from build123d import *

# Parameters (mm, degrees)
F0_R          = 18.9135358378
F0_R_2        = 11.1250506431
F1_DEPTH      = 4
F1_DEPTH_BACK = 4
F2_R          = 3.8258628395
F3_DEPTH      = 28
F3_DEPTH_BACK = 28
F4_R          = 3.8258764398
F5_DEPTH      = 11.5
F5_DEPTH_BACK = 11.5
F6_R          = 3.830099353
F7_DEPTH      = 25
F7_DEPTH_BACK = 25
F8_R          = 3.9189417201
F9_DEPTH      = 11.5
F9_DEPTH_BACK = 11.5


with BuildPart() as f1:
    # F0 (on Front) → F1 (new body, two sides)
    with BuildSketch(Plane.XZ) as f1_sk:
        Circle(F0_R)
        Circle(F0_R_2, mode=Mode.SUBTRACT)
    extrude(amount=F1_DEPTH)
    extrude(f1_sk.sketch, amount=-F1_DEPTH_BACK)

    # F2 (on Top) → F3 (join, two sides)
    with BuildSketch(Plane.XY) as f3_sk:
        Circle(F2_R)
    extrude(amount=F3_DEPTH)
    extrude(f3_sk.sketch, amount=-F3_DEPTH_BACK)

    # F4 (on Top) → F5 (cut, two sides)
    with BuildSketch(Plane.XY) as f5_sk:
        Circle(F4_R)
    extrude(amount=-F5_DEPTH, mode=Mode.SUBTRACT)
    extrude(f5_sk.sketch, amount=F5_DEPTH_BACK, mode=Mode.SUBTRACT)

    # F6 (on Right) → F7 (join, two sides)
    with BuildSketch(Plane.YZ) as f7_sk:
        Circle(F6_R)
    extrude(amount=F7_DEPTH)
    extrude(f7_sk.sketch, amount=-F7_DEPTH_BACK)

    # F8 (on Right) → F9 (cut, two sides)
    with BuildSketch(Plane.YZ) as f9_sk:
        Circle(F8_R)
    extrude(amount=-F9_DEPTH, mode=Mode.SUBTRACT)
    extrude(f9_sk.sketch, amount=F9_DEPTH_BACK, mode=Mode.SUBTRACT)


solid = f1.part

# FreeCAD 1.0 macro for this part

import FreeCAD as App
import Part
import Sketcher

V = App.Vector
Q = App.Units.Quantity

doc = App.newDocument("Part")
body = doc.addObject("PartDesign::Body", "Body")

sketch1 = doc.addObject("Sketcher::SketchObject", "Sketch")
body.addObject(sketch1)
sketch1.AttachmentSupport = (doc.XZ_Plane, [""])
sketch1.MapMode = "FlatFace"
sketch1.addGeometry([
    Part.Circle(V(0, 0, 0), V(0, 0, 1), 19),
    Part.Circle(V(0, 0, 0), V(0, 0, 1), 11),
], False)
sketch1.addConstraint([
    Sketcher.Constraint("Coincident", 0, 3, -1, 1),
    Sketcher.Constraint("Coincident", 1, 3, -1, 1),
    Sketcher.Constraint("Diameter", 1, Q("22.250101 mm")),
    Sketcher.Constraint("Diameter", 0, Q("37.827072 mm")),
])
pad1 = doc.addObject("PartDesign::Pad", "Pad")
body.addObject(pad1)
pad1.Profile = sketch1
pad1.Type = "TwoLengths"
pad1.Length = 4
pad1.Length2 = 4

sketch2 = doc.addObject("Sketcher::SketchObject", "Sketch001")
body.addObject(sketch2)
sketch2.AttachmentSupport = (doc.XY_Plane, [""])
sketch2.MapMode = "FlatFace"
sketch2.addGeometry(Part.Circle(V(0, 0, 0), V(0, 0, 1), 3.8), False)
sketch2.addConstraint([
    Sketcher.Constraint("Coincident", 0, 3, -1, 1),
    Sketcher.Constraint("Diameter", 0, Q("7.651726 mm")),
])
pad2 = doc.addObject("PartDesign::Pad", "Pad001")
body.addObject(pad2)
pad2.Profile = sketch2
pad2.Type = "TwoLengths"
pad2.Length = 28
pad2.Length2 = 28

sketch3 = doc.addObject("Sketcher::SketchObject", "Sketch002")
body.addObject(sketch3)
sketch3.AttachmentSupport = (doc.XY_Plane, [""])
sketch3.MapMode = "FlatFace"
sketch3.addGeometry(Part.Circle(V(0, 0, 0), V(0, 0, 1), 3.8), False)
sketch3.addConstraint([
    Sketcher.Constraint("Coincident", 0, 3, -1, 1),
    Sketcher.Constraint("Diameter", 0, Q("7.651753 mm")),
])
pocket1 = doc.addObject("PartDesign::Pocket", "Pocket")
body.addObject(pocket1)
pocket1.Profile = sketch3
pocket1.Type = "TwoLengths"
pocket1.Length = 11.5
pocket1.Length2 = 11.5

sketch4 = doc.addObject("Sketcher::SketchObject", "Sketch003")
body.addObject(sketch4)
sketch4.AttachmentSupport = (doc.YZ_Plane, [""])
sketch4.MapMode = "FlatFace"
sketch4.addGeometry(Part.Circle(V(0, 0, 0), V(0, 0, 1), 3.8), False)
sketch4.addConstraint([
    Sketcher.Constraint("Coincident", 0, 3, -1, 1),
    Sketcher.Constraint("Diameter", 0, Q("7.660199 mm")),
])
pad3 = doc.addObject("PartDesign::Pad", "Pad002")
body.addObject(pad3)
pad3.Profile = sketch4
pad3.Type = "TwoLengths"
pad3.Length = 25
pad3.Length2 = 25

sketch5 = doc.addObject("Sketcher::SketchObject", "Sketch004")
body.addObject(sketch5)
sketch5.AttachmentSupport = (doc.YZ_Plane, [""])
sketch5.MapMode = "FlatFace"
sketch5.addGeometry(Part.Circle(V(0, 0, 0), V(0, 0, 1), 3.9), False)
sketch5.addConstraint([
    Sketcher.Constraint("Coincident", 0, 3, -1, 1),
    Sketcher.Constraint("Diameter", 0, Q("7.837883 mm")),
])
pocket2 = doc.addObject("PartDesign::Pocket", "Pocket001")
body.addObject(pocket2)
pocket2.Profile = sketch5
pocket2.Type = "TwoLengths"
pocket2.Length = 11.5
pocket2.Length2 = 11.5

doc.recompute()
